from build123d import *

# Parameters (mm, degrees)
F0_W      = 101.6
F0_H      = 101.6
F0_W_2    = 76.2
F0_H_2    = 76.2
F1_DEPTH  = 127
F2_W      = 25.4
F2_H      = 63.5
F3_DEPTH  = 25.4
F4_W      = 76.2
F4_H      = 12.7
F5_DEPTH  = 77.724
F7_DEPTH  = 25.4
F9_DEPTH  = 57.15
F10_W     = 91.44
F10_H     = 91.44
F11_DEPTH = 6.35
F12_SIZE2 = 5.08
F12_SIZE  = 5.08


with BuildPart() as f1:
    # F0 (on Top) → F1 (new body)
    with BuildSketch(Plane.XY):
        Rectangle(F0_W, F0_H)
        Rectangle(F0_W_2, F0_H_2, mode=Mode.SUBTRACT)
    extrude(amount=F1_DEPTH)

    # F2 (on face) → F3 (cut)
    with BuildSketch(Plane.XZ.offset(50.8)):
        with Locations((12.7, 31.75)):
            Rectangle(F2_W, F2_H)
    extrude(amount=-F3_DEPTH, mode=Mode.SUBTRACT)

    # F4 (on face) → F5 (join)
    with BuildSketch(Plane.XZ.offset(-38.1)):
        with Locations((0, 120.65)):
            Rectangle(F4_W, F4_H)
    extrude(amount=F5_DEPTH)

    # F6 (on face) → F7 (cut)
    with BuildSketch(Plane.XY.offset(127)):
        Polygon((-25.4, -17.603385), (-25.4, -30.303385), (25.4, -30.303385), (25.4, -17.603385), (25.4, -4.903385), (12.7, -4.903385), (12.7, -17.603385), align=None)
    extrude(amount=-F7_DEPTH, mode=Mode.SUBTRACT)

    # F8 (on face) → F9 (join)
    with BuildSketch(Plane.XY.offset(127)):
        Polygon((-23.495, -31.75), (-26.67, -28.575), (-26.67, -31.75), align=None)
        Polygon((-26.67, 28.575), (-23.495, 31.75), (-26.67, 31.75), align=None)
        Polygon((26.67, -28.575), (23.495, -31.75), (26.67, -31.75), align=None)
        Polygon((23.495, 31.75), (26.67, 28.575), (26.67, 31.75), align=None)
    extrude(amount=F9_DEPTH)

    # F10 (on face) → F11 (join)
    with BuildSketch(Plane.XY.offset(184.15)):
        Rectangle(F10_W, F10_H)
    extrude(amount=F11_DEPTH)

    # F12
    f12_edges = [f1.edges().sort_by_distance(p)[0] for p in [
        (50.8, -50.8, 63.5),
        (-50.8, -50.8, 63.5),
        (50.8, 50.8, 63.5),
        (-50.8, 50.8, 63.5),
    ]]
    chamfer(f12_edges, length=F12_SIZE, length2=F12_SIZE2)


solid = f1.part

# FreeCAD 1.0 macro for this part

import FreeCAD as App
import Part
import Sketcher
from FreeCAD import Vector
Q = App.Units.Quantity


def edges_at(feature, points):
    """Names of the edges that pass closest to the given points."""
    edges = feature.Shape.Edges
    near = lambda p: min(range(len(edges)), key=lambda i: edges[i].distToShape(Part.Vertex(*p))[0])
    return sorted({f"Edge{near(p) + 1}" for p in points})


def add_polygon(sketch, points):
    """Adds a closed chain of lines whose ends are joined by coincident constraints."""
    first, n = sketch.GeometryCount, len(points)
    for a, b in zip(points, points[1:] + points[:1]):
        sketch.addGeometry(Part.LineSegment(App.Vector(*a, 0), App.Vector(*b, 0)), False)
    for i in range(n):
        sketch.addConstraint(Sketcher.Constraint("Coincident", first + i, 2, first + (i + 1) % n, 1))

doc = App.newDocument("Part")
body = doc.addObject("PartDesign::Body", "Body")

sketch1 = doc.addObject("Sketcher::SketchObject", "Sketch")
body.addObject(sketch1)
sketch1.AttachmentSupport = (doc.XY_Plane, [""])
sketch1.MapMode = "FlatFace"
add_polygon(sketch1, [(-51, 51), (-51, -51), (51, -51), (51, 51)])
add_polygon(sketch1, [(38, -38), (-38, -38), (-38, 38), (38, 38)])
sketch1.addConstraint([
    Sketcher.Constraint("Vertical", 0),
    Sketcher.Constraint("Horizontal", 1),
    Sketcher.Constraint("Vertical", 2),
    Sketcher.Constraint("Horizontal", 3),
    Sketcher.Constraint("Horizontal", 4),
    Sketcher.Constraint("Vertical", 5),
    Sketcher.Constraint("Horizontal", 6),
    Sketcher.Constraint("Vertical", 7),
    Sketcher.Constraint("Symmetric", 0, 2, 2, 2, -1, 1),
    Sketcher.Constraint("Symmetric", 4, 2, 6, 2, -1, 1),
    Sketcher.Constraint("Equal", 3, 0),
    Sketcher.Constraint("Equal", 6, 5),
    Sketcher.Constraint("DistanceX", 1, 1, 1, 2, Q("4 in")),
    Sketcher.Constraint("DistanceX", 4, 2, 4, 1, Q("3 in")),
])
pad1 = doc.addObject("PartDesign::Pad", "Pad")
body.addObject(pad1)
pad1.Profile = sketch1
pad1.Length = Q("5 in")

sketch2 = doc.addObject("Sketcher::SketchObject", "Sketch001")
body.addObject(sketch2)
sketch2.AttachmentSupport = (doc.XZ_Plane, [""])
sketch2.MapMode = "FlatFace"
sketch2.AttachmentOffset = App.Placement(Vector(0, 0, 2 * 25.4), App.Rotation())
add_polygon(sketch2, [(0, 64), (0, 0), (25, 0), (25, 64)])
sketch2.addConstraint([
    Sketcher.Constraint("Vertical", 0),
    Sketcher.Constraint("Horizontal", 1),
    Sketcher.Constraint("Vertical", 2),
    Sketcher.Constraint("Horizontal", 3),
    Sketcher.Constraint("Coincident", 0, 2, -1, 1),
    Sketcher.Constraint("DistanceX", 1, 1, 1, 2, Q("1 in")),
    Sketcher.Constraint("DistanceY", 0, 2, 0, 1, Q("2.5 in")),
])
pocket1 = doc.addObject("PartDesign::Pocket", "Pocket")
body.addObject(pocket1)
pocket1.Profile = sketch2
pocket1.Length = Q("1 in")

sketch3 = doc.addObject("Sketcher::SketchObject", "Sketch002")
body.addObject(sketch3)
sketch3.AttachmentSupport = (doc.XZ_Plane, [""])
sketch3.MapMode = "FlatFace"
sketch3.AttachmentOffset = App.Placement(Vector(0, 0, -1.5 * 25.4), App.Rotation())
add_polygon(sketch3, [(-38, 127), (-38, 114), (38, 114), (38, 127)])
sketch3.addConstraint([
    Sketcher.Constraint("Vertical", 0),
    Sketcher.Constraint("Horizontal", 1),
    Sketcher.Constraint("Vertical", 2),
    Sketcher.Constraint("Horizontal", 3),
    Sketcher.Constraint("DistanceX", 1, 1, 1, 2, Q("3 in")),
    Sketcher.Constraint("DistanceY", 0, 2, 0, 1, Q("0.5 in")),
    Sketcher.Constraint("DistanceY", -1, 1, 2, 2, Q("5 in")),
    Sketcher.Constraint("DistanceX", 0, 2, -1, 1, Q("1.5 in")),
])
pad2 = doc.addObject("PartDesign::Pad", "Pad001")
body.addObject(pad2)
pad2.Profile = sketch3
pad2.Length = Q("3.06 in")

sketch4 = doc.addObject("Sketcher::SketchObject", "Sketch003")
body.addObject(sketch4)
sketch4.AttachmentSupport = (doc.XY_Plane, [""])
sketch4.MapMode = "FlatFace"
sketch4.AttachmentOffset = App.Placement(Vector(0, 0, 5 * 25.4), App.Rotation())
add_polygon(sketch4, [(-25, -18), (-25, -30), (25, -30), (25, -5), (13, -5), (13, -18)])
sketch4.addConstraint([
    Sketcher.Constraint("Vertical", 0),
    Sketcher.Constraint("Horizontal", 1),
    Sketcher.Constraint("Vertical", 2),
    Sketcher.Constraint("Horizontal", 3),
    Sketcher.Constraint("Vertical", 4),
    Sketcher.Constraint("Horizontal", 5),
    Sketcher.Constraint("Equal", 3, 0),
    Sketcher.Constraint("Equal", 0, 4),
    Sketcher.Constraint("DistanceX", 1, 1, 1, 2, Q("2 in")),
    Sketcher.Constraint("DistanceY", 2, 1, 2, 2, Q("1 in")),
    Sketcher.Constraint("DistanceX", 0, 2, -1, 1, Q("1 in")),
    Sketcher.Constraint("DistanceY", 0, 2, -1, 1, 30.303385),
])
pocket2 = doc.addObject("PartDesign::Pocket", "Pocket001")
body.addObject(pocket2)
pocket2.Profile = sketch4
pocket2.Length = Q("1 in")

sketch5 = doc.addObject("Sketcher::SketchObject", "Sketch004")
body.addObject(sketch5)
sketch5.AttachmentSupport = (doc.XY_Plane, [""])
sketch5.MapMode = "FlatFace"
sketch5.AttachmentOffset = App.Placement(Vector(0, 0, 5 * 25.4), App.Rotation())
add_polygon(sketch5, [(-23.5, -31.8), (-26.7, -28.6), (-26.7, -31.8)])
add_polygon(sketch5, [(-26.7, 28.6), (-23.5, 31.8), (-26.7, 31.8)])
add_polygon(sketch5, [(26.7, -28.6), (23.5, -31.8), (26.7, -31.8)])
add_polygon(sketch5, [(23.5, 31.8), (26.7, 28.6), (26.7, 31.8)])
sketch5.addConstraint([
    Sketcher.Constraint("Vertical", 1),
    Sketcher.Constraint("Horizontal", 2),
    Sketcher.Constraint("Horizontal", 4),
    Sketcher.Constraint("Vertical", 5),
    Sketcher.Constraint("Horizontal", 7),
    Sketcher.Constraint("Vertical", 8),
    Sketcher.Constraint("Vertical", 10),
    Sketcher.Constraint("Horizontal", 11),
    Sketcher.Constraint("Symmetric", 3, 2, 6, 2, -1, 1),
    Sketcher.Constraint("Symmetric", 5, 2, 8, 2, -1, 1),
    Sketcher.Constraint("Symmetric", 0, 2, 9, 2, -1, 1),
    Sketcher.Constraint("Symmetric", 2, 2, 11, 2, -1, 1),
    Sketcher.Constraint("Symmetric", 2, 2, 6, 2, -2),
    Sketcher.Constraint("Symmetric", 0, 2, 8, 2, -2),
    Sketcher.Constraint("Perpendicular", 0, 3),
    Sketcher.Constraint("DistanceY", 2, 2, 3, 2, Q("2.5 in")),
    Sketcher.Constraint("DistanceX", 1, 2, 7, 2, Q("2.1 in")),
    Sketcher.Constraint("DistanceX", 2, 1, 2, 2, Q("0.125 in")),
])
pad3 = doc.addObject("PartDesign::Pad", "Pad002")
body.addObject(pad3)
pad3.Profile = sketch5
pad3.Length = Q("2.25 in")

sketch6 = doc.addObject("Sketcher::SketchObject", "Sketch005")
body.addObject(sketch6)
sketch6.AttachmentSupport = (doc.XY_Plane, [""])
sketch6.MapMode = "FlatFace"
sketch6.AttachmentOffset = App.Placement(Vector(0, 0, 7.25 * 25.4), App.Rotation())
add_polygon(sketch6, [(-46, 46), (-46, -46), (46, -46), (46, 46)])
sketch6.addConstraint([
    Sketcher.Constraint("Vertical", 0),
    Sketcher.Constraint("Horizontal", 1),
    Sketcher.Constraint("Vertical", 2),
    Sketcher.Constraint("Horizontal", 3),
    Sketcher.Constraint("Symmetric", 0, 2, 2, 2, -1, 1),
    Sketcher.Constraint("Equal", 3, 0),
    Sketcher.Constraint("DistanceX", 1, 1, 1, 2, Q("3.6 in")),
])
pad4 = doc.addObject("PartDesign::Pad", "Pad003")
body.addObject(pad4)
pad4.Profile = sketch6
pad4.Length = Q("0.25 in")
doc.recompute()

chamfer = doc.addObject("PartDesign::Chamfer", "Chamfer")
body.addObject(chamfer)
chamfer.Base = (pad4, edges_at(pad4, [
    (50.8, -50.8, 63.5),
    (-50.8, -50.8, 63.5),
    (50.8, 50.8, 63.5),
    (-50.8, 50.8, 63.5),
]))
chamfer.ChamferType = "Two distances"
chamfer.Size = Q("0.2 in")
chamfer.Size2 = Q("0.2 in")

doc.recompute()
